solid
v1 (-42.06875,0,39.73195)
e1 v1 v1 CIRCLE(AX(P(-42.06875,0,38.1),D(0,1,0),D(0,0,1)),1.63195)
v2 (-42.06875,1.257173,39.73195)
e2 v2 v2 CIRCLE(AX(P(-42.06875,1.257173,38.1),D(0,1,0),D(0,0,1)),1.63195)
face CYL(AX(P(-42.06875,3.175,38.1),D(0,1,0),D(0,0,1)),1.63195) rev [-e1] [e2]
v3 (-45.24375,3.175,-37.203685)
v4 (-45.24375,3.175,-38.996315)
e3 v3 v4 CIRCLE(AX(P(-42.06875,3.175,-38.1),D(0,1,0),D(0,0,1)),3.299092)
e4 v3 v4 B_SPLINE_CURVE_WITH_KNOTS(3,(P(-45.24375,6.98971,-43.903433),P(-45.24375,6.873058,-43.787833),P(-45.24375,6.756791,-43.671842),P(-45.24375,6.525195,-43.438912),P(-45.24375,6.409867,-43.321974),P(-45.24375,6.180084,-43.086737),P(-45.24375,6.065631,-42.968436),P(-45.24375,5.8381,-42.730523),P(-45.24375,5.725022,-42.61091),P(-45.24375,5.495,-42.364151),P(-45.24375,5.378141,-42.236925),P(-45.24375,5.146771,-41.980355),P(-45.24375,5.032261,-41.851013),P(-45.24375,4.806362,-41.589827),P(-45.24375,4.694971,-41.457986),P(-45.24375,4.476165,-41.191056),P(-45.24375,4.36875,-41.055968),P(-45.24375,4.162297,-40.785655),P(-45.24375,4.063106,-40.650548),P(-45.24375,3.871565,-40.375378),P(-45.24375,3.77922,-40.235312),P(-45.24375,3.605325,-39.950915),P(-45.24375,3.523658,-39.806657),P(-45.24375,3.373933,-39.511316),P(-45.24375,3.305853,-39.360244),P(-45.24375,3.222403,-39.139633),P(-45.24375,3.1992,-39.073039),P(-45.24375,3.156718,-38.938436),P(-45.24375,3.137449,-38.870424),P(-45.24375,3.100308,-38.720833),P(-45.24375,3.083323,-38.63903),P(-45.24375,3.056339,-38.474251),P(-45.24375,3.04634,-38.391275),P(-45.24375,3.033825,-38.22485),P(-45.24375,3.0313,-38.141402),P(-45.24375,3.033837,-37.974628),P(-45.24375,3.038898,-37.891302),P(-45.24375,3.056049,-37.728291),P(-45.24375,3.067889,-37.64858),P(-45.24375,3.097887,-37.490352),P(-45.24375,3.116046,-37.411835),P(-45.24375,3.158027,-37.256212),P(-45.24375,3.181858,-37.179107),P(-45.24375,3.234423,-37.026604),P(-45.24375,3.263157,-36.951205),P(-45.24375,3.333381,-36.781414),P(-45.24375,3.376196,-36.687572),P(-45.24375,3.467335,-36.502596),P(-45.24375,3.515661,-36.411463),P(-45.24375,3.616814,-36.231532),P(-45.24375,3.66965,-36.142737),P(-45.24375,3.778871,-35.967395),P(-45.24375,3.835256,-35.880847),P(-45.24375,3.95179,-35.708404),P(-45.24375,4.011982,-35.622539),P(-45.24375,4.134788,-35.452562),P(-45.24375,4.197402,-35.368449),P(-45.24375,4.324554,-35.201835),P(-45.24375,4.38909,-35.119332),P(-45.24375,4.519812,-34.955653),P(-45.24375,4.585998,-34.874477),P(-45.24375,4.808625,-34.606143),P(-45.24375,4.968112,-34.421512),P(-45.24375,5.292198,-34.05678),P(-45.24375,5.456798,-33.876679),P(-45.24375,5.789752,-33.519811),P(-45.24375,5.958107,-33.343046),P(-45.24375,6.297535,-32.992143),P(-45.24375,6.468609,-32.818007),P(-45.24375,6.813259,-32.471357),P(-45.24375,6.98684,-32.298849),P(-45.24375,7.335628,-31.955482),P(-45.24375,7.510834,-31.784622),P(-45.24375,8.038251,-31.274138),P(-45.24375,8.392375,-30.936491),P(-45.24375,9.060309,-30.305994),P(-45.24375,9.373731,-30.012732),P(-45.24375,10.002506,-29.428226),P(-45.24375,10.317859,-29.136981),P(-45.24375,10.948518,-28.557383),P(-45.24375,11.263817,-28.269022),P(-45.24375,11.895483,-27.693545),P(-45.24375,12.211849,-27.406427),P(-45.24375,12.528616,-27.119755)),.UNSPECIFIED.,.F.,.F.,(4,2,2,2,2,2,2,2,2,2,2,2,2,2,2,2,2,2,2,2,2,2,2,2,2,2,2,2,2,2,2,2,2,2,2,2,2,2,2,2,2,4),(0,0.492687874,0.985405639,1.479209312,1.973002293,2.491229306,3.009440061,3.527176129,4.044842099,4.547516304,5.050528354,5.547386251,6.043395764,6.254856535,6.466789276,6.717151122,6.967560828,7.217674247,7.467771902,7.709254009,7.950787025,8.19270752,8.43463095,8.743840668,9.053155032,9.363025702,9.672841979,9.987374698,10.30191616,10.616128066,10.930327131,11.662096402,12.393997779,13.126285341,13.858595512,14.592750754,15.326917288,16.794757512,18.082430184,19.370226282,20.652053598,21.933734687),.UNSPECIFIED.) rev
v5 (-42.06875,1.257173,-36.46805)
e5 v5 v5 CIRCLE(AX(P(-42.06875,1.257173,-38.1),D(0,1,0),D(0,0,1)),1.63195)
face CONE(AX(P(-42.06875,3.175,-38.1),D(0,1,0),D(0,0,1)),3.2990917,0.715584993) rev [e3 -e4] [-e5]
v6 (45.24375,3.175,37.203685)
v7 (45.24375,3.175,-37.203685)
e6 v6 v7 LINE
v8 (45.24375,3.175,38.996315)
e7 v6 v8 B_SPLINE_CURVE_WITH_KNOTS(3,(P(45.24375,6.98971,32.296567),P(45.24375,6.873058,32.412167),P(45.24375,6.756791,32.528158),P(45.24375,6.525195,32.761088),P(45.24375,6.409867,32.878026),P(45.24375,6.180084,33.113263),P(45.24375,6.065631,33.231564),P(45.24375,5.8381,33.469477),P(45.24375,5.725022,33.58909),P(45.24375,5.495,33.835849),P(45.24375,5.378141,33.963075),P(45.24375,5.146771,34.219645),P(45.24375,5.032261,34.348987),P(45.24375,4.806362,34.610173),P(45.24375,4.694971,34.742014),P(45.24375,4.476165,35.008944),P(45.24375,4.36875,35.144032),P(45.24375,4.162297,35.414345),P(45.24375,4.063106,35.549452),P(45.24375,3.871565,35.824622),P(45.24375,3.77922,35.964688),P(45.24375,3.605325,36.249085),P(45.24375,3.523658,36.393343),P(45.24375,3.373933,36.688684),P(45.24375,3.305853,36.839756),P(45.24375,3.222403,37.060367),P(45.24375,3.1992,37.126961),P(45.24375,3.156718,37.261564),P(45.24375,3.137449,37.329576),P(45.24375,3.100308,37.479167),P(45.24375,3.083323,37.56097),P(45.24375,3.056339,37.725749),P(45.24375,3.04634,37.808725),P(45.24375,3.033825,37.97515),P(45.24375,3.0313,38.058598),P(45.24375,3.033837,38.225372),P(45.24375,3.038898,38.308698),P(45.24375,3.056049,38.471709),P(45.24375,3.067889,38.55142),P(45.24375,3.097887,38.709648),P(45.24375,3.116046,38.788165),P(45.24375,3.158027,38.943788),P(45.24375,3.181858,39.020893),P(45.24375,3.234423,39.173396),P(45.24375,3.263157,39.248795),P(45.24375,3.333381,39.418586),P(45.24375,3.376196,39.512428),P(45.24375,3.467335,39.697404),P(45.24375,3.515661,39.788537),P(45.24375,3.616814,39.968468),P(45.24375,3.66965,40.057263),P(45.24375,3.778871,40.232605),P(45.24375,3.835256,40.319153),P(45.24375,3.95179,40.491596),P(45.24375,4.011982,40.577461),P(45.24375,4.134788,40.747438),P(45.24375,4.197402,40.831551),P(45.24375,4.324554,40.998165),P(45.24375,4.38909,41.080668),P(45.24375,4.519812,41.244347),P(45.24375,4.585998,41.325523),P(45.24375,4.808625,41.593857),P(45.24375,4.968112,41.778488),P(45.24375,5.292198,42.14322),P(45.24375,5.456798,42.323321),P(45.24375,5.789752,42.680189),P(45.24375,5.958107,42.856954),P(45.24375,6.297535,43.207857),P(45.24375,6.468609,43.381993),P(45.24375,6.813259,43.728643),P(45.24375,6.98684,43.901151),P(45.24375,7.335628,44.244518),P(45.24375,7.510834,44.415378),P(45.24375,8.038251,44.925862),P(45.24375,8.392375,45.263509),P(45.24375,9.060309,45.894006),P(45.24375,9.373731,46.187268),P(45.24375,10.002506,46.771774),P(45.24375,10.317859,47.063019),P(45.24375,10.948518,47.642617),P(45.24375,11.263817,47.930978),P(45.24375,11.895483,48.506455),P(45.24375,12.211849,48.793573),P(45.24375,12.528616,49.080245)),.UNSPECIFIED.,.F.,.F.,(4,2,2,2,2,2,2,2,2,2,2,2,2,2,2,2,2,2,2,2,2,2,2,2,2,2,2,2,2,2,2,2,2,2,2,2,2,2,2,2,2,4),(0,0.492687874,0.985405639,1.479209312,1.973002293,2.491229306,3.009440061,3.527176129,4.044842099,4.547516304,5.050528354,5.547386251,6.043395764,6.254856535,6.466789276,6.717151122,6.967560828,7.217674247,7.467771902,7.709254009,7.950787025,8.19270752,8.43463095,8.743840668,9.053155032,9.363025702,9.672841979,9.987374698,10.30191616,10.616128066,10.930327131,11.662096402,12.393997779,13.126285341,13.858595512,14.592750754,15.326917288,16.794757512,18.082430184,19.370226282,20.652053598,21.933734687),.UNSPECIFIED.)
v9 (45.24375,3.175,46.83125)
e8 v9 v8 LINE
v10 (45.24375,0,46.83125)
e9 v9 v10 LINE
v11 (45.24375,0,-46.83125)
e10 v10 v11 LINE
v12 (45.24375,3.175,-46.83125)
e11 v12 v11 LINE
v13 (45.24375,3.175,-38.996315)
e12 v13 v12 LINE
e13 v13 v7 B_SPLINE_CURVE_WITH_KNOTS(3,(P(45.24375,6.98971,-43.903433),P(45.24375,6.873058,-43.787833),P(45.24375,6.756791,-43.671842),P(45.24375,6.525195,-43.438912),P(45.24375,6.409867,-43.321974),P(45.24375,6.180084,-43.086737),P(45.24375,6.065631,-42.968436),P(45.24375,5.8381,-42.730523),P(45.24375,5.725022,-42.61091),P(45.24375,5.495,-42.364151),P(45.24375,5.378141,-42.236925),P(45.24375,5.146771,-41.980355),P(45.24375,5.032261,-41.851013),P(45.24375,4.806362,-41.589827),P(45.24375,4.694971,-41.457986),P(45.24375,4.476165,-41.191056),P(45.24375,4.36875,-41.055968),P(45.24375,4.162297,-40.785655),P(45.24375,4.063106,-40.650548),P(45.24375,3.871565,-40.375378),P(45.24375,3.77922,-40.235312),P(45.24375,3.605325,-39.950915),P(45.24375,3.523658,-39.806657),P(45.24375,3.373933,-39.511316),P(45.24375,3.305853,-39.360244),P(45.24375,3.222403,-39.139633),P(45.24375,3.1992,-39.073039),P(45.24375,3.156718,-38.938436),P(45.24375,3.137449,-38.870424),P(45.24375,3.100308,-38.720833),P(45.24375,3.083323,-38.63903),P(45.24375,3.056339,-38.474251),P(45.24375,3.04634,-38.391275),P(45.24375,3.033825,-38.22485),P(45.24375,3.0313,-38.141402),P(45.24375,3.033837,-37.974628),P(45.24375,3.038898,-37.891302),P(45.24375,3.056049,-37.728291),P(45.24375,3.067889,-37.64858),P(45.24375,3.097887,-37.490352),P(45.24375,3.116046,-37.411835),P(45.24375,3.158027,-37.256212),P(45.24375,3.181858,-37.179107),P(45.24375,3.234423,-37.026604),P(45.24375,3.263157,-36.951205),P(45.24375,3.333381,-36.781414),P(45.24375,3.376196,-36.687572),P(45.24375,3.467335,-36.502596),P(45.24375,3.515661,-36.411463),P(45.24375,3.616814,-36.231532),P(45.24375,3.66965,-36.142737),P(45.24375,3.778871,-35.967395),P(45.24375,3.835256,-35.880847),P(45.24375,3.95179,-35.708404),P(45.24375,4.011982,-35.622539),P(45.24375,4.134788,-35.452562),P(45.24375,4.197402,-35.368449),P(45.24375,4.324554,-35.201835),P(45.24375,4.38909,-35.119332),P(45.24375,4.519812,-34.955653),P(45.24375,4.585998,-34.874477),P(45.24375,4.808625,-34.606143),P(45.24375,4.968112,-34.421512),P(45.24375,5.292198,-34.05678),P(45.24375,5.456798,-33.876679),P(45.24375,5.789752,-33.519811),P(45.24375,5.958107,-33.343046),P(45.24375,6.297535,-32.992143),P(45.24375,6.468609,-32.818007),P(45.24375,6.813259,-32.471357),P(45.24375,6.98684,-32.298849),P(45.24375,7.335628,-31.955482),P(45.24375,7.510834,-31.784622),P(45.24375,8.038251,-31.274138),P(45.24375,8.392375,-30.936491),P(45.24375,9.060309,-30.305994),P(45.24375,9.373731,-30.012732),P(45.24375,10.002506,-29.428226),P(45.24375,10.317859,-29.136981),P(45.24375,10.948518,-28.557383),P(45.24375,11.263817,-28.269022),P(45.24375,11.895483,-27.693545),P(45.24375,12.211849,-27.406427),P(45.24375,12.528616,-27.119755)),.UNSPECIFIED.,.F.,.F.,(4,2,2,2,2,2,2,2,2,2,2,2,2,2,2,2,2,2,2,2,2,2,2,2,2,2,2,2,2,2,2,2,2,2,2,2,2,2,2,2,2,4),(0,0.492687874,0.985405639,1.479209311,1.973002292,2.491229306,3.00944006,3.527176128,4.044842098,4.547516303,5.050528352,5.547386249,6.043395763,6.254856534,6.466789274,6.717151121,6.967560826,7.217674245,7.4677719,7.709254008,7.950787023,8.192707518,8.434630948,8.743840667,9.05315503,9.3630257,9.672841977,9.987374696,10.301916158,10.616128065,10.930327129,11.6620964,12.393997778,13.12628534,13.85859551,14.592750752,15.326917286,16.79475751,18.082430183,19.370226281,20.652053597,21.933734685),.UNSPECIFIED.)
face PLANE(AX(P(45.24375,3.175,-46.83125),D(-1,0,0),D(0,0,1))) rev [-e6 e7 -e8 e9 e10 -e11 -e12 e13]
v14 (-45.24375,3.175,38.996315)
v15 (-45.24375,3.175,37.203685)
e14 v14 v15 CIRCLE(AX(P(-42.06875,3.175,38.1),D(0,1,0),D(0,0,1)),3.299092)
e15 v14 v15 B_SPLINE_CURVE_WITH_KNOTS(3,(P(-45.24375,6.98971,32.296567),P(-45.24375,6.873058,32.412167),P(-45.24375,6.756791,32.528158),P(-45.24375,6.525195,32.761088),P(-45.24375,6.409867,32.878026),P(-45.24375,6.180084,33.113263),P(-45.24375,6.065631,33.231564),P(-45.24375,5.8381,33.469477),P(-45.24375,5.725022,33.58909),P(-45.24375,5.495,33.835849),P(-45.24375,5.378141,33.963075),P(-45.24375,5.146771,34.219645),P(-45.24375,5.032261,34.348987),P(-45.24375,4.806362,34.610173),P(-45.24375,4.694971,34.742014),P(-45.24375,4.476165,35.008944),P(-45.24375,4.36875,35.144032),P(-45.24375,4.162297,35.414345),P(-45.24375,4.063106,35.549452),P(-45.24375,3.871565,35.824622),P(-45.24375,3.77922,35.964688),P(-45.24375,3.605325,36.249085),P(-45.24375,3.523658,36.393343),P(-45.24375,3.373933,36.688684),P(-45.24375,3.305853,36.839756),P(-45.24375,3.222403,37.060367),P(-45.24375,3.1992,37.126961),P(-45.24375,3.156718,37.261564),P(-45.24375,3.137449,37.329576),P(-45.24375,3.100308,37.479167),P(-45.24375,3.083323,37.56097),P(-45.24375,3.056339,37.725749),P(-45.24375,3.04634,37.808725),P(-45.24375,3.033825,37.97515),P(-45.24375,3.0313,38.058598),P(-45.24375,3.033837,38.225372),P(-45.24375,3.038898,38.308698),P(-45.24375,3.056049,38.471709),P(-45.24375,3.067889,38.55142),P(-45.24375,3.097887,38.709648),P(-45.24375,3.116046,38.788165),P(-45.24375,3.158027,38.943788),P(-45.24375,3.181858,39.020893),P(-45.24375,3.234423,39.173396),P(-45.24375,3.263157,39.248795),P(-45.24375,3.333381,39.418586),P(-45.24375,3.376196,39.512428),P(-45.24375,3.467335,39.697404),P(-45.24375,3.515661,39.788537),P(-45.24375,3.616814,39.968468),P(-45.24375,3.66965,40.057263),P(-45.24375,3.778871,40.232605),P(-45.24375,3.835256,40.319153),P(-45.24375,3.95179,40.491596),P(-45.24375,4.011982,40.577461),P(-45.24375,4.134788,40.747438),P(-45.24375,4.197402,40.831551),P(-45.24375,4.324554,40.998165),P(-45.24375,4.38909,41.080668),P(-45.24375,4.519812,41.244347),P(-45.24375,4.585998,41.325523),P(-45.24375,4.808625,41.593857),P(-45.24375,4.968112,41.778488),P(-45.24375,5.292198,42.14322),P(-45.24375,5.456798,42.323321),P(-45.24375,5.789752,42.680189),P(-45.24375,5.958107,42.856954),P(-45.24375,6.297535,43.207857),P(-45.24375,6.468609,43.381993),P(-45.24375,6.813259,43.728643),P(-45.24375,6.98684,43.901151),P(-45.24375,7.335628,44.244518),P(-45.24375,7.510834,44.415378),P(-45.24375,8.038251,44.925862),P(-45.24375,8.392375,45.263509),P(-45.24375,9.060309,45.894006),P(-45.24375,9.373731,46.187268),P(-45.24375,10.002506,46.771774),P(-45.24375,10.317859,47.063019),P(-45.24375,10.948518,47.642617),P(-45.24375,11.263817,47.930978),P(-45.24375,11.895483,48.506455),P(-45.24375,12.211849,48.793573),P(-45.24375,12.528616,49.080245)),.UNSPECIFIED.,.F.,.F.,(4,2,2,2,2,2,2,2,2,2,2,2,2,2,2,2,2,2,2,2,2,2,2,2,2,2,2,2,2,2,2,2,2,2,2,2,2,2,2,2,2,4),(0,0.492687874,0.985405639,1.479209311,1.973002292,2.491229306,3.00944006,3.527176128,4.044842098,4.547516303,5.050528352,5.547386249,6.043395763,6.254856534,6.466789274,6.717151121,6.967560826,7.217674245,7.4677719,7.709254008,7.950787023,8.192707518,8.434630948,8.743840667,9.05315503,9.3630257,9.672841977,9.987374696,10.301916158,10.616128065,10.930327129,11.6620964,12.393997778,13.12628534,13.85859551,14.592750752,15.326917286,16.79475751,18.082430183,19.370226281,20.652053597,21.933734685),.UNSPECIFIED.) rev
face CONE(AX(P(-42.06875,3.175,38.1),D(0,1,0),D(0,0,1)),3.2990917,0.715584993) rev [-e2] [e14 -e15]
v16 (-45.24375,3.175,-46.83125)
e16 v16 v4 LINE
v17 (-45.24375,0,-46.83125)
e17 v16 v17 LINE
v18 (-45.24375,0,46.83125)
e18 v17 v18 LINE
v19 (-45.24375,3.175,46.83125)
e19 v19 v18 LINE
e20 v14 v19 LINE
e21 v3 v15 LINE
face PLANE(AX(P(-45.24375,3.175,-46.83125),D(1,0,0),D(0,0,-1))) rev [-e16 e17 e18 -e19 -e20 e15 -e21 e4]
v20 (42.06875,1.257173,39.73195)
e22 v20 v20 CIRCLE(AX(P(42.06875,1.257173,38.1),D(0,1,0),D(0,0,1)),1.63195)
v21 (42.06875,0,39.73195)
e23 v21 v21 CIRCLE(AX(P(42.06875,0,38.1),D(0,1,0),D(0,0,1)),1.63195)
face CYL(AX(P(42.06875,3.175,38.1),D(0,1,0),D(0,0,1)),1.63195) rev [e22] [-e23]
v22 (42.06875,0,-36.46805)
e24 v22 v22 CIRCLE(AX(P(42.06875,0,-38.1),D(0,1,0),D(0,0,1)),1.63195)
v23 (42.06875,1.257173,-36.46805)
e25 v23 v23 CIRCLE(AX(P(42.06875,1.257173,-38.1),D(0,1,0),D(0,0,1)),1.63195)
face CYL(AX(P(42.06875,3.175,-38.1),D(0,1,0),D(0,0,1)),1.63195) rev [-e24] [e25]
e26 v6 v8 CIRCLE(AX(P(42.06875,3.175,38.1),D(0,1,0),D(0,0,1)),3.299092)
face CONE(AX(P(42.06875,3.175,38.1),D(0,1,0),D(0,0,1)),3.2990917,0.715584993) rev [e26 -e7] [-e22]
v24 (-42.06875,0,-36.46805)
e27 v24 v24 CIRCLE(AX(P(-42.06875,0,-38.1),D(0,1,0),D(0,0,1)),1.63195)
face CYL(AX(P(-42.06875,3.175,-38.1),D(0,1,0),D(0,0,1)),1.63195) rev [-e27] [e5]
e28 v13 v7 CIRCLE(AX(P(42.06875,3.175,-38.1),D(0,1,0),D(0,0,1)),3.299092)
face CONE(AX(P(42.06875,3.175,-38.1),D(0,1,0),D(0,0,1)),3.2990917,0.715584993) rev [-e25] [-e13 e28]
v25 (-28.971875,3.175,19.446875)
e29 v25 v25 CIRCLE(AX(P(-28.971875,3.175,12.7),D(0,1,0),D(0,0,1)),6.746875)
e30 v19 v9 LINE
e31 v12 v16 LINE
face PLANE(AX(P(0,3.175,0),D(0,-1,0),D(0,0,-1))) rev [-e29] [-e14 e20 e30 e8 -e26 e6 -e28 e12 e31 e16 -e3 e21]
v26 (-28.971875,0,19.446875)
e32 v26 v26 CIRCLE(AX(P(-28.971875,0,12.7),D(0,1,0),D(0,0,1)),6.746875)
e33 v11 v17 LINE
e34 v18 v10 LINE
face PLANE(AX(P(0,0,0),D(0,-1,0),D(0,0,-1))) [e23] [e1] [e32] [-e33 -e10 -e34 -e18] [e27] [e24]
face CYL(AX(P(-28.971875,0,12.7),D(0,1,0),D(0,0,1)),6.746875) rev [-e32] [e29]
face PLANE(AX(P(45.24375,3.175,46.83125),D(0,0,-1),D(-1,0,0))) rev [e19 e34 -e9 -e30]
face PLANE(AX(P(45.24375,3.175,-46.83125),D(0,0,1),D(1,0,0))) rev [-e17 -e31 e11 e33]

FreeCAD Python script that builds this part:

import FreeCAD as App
import Part
import Sketcher
from FreeCAD import Vector
Q = App.Units.Quantity

doc = App.newDocument("Part")
body = doc.addObject("PartDesign::Body", "Body")

# Sketch on XZ plane
sketch1 = body.newObject("Sketcher::SketchObject", "Sketch")
sketch1.AttachmentSupport = (doc.getObject("XZ_Plane"), [""])
sketch1.MapMode = "FlatFace"
sketch1.addGeometry([
    Part.LineSegment(Vector(-45, -47, 0), Vector(-45, 47, 0)),
    Part.LineSegment(Vector(-45, 47, 0), Vector(45, 47, 0)),
    Part.LineSegment(Vector(45, 47, 0), Vector(45, -47, 0)),
    Part.LineSegment(Vector(45, -47, 0), Vector(-45, -47, 0)),
], False)
sketch1.addConstraint([
    Sketcher.Constraint("Coincident", 0, 2, 1, 1),
    Sketcher.Constraint("Coincident", 1, 2, 2, 1),
    Sketcher.Constraint("Coincident", 2, 2, 3, 1),
    Sketcher.Constraint("Coincident", 3, 2, 0, 1),
    Sketcher.Constraint("Vertical", 0),
    Sketcher.Constraint("Horizontal", 1),
    Sketcher.Constraint("Vertical", 2),
    Sketcher.Constraint("Horizontal", 3),
    Sketcher.Constraint("Symmetric", 0, 2, 2, 2, -1, 1),
    Sketcher.Constraint("DistanceX", 1, 1, 1, 2, Q("3.5625 in")),
    Sketcher.Constraint("DistanceY", 0, 1, 0, 2, Q("3.6875 in")),
])
pad1 = body.newObject("PartDesign::Pad", "Pad")
pad1.Profile = sketch1
pad1.Length = Q("0.125 in")
pad1.Reversed = True

# Sketch on YZ plane
sketch2 = body.newObject("Sketcher::SketchObject", "Sketch001")
sketch2.AttachmentSupport = (doc.getObject("YZ_Plane"), [""])
sketch2.MapMode = "FlatFace"
sketch2.AttachmentOffset = App.Placement(Vector(0, 0, 1.65625 * 25.4), App.Rotation())
sketch2.addGeometry([
    Part.LineSegment(Vector(0, 38.1, 0), Vector(3.2, 38.1, 0)),  # 0
    Part.LineSegment(Vector(3.2, 38.1, 0), Vector(3.2, 41.4, 0)),  # 1
    Part.LineSegment(Vector(3.2, 41.4, 0), Vector(1.3, 39.7, 0)),  # 2
    Part.LineSegment(Vector(1.3, 39.7, 0), Vector(0, 39.7, 0)),  # 3
    Part.LineSegment(Vector(0, 39.7, 0), Vector(0, 38.1, 0)),  # 4
], False)
sketch2.addGeometry(Part.LineSegment(Vector(3.2, 38.1, 0), Vector(0, 38.1, 0)), True)  # axis
sketch2.addConstraint([
    Sketcher.Constraint("Coincident", 0, 2, 1, 1),
    Sketcher.Constraint("Coincident", 1, 2, 2, 1),
    Sketcher.Constraint("Coincident", 2, 2, 3, 1),
    Sketcher.Constraint("Coincident", 3, 2, 4, 1),
    Sketcher.Constraint("Coincident", 4, 2, 0, 1),
    Sketcher.Constraint("Horizontal", 0),
    Sketcher.Constraint("Vertical", 1),
    Sketcher.Constraint("Horizontal", 3),
    Sketcher.Constraint("Vertical", 4),
    Sketcher.Constraint("Horizontal", 5),
    Sketcher.Constraint("Coincident", 5, 1, 0, 2),
    Sketcher.Constraint("PointOnObject", 3, 2, -2),
    Sketcher.Constraint("PointOnObject", 5, 2, -2),
    Sketcher.Constraint("Angle", 2, Q("-139 deg")),
    Sketcher.Constraint("DistanceY", -1, 1, 0, 2, Q("1.5 in")),
    Sketcher.Constraint("DistanceX", 0, 1, 0, 2, Q("0.125 in")),
    Sketcher.Constraint("DistanceY", 1, 1, 1, 2, Q("3.299092 mm")),
    Sketcher.Constraint("DistanceY", 4, 2, 4, 1, Q("1.63195 mm")),
])
groove = body.newObject("PartDesign::Groove", "Groove")
groove.Profile = sketch2
groove.ReferenceAxis = (sketch2, ["Axis0"])
groove.Angle = 360
doc.recompute()

datumline = body.newObject("PartDesign::Line", "DatumLine")
datumline.Placement = App.Placement(Vector(0, 0, 0), App.Rotation(Vector(0, 0, 1), Vector(-0.741204374, 0, -0.671279433)))
linearpattern = body.newObject("PartDesign::LinearPattern", "LinearPattern")
linearpattern.Originals = [groove]
linearpattern.Direction = (datumline, [""])
linearpattern.Mode = "offset"
linearpattern.Offset = 113.514576
linearpattern.Occurrences = 2
body.Tip = linearpattern
doc.recompute()

linearpattern2 = body.newObject("PartDesign::LinearPattern", "LinearPattern001")
linearpattern2.Originals = [groove]
linearpattern2.Direction = (doc.getObject("X_Axis"), [""])
linearpattern2.Mode = "offset"
linearpattern2.Offset = Q("3.3125 in")
linearpattern2.Occurrences = 2
linearpattern2.Reversed = True
body.Tip = linearpattern2
doc.recompute()

linearpattern3 = body.newObject("PartDesign::LinearPattern", "LinearPattern002")
linearpattern3.Originals = [groove]
linearpattern3.Direction = (doc.getObject("Z_Axis"), [""])
linearpattern3.Mode = "offset"
linearpattern3.Offset = Q("3 in")
linearpattern3.Occurrences = 2
linearpattern3.Reversed = True
body.Tip = linearpattern3

# Sketch on XZ plane
sketch3 = body.newObject("Sketcher::SketchObject", "Sketch002")
sketch3.AttachmentSupport = (doc.getObject("XZ_Plane"), [""])
sketch3.MapMode = "FlatFace"
sketch3.AttachmentOffset = App.Placement(Vector(0, 0, -0.125 * 25.4), App.Rotation())
sketch3.addGeometry(Part.Circle(Vector(-29, 13, 0), Vector(0, 0, 1), 7), False)
sketch3.addConstraint([
    Sketcher.Constraint("Diameter", 0, Q("0.53125 in")),
    Sketcher.Constraint("DistanceY", -1, 1, 0, 3, Q("0.5 in")),
    Sketcher.Constraint("DistanceX", 0, 3, -1, 1, Q("1.140625 in")),
])
pocket1 = body.newObject("PartDesign::Pocket", "Pocket")
pocket1.Profile = sketch3
pocket1.Type = "ThroughAll"
pocket1.Reversed = True

doc.recompute()
